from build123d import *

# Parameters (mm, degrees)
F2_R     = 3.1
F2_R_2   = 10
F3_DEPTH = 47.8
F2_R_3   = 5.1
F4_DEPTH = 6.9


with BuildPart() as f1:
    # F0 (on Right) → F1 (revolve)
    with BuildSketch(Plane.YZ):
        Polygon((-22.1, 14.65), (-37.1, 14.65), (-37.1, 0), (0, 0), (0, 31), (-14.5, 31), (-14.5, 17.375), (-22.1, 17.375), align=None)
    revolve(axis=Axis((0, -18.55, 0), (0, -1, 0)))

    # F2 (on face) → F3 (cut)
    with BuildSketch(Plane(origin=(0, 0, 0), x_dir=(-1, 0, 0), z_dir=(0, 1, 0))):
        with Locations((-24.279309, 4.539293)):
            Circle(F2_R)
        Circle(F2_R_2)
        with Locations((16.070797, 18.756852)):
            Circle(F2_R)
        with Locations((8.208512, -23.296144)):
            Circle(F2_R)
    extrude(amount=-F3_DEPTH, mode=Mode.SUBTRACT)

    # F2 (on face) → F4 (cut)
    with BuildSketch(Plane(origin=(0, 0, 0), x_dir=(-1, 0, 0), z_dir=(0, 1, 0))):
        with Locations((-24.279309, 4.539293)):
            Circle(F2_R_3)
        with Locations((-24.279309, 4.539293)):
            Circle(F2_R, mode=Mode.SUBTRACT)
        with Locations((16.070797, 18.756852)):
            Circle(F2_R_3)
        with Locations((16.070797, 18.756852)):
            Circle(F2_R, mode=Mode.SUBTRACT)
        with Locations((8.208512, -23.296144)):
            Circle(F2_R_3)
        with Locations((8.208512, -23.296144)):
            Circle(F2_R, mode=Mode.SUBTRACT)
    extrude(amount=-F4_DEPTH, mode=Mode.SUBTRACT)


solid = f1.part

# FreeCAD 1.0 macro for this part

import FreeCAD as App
import Part
import Sketcher
Q = App.Units.Quantity


def add_polygon(sketch, points):
    """Adds a closed chain of lines whose ends are joined by coincident constraints."""
    first, n = sketch.GeometryCount, len(points)
    for a, b in zip(points, points[1:] + points[:1]):
        sketch.addGeometry(Part.LineSegment(App.Vector(*a, 0), App.Vector(*b, 0)), False)
    for i in range(n):
        sketch.addConstraint(Sketcher.Constraint("Coincident", first + i, 2, first + (i + 1) % n, 1))

doc = App.newDocument("Part")
body = doc.addObject("PartDesign::Body", "Body")

sketch1 = body.newObject("Sketcher::SketchObject", "Sketch")
sketch1.AttachmentSupport = (doc.getObject("YZ_Plane"), [""])
sketch1.MapMode = "FlatFace"
add_polygon(sketch1, [(-22.1, 14.7), (-37.1, 14.7), (-37.1, 0), (0, 0), (0, 31), (-14.5, 31), (-14.5, 17.4), (-22.1, 17.4)])
sketch1.addConstraint([
    Sketcher.Constraint("Horizontal", 0),
    Sketcher.Constraint("Vertical", 1),
    Sketcher.Constraint("Horizontal", 2),
    Sketcher.Constraint("Vertical", 3),
    Sketcher.Constraint("Horizontal", 4),
    Sketcher.Constraint("Vertical", 5),
    Sketcher.Constraint("Horizontal", 6),
    Sketcher.Constraint("Vertical", 7),
    Sketcher.Constraint("Coincident", 2, 2, -1, 1),
    Sketcher.Constraint("DistanceX", 0, 2, 0, 1, Q("15 mm")),
    Sketcher.Constraint("DistanceY", 3, 1, 3, 2, Q("31 mm")),
    Sketcher.Constraint("DistanceX", 2, 1, 2, 2, Q("37.1 mm")),
    Sketcher.Constraint("DistanceX", 4, 2, 4, 1, Q("14.5 mm")),
    Sketcher.Constraint("DistanceY", 1, 2, 1, 1, Q("14.65 mm")),
    Sketcher.Constraint("DistanceY", 5, 2, 5, 1, Q("13.625 mm")),
])
revolution = body.newObject("PartDesign::Revolution", "Revolution")
revolution.Profile = sketch1
revolution.ReferenceAxis = (sketch1, ["H_Axis"])
revolution.Angle = 360

sketch2 = body.newObject("Sketcher::SketchObject", "Sketch001")
sketch2.AttachmentSupport = (doc.getObject("XZ_Plane"), [""])
sketch2.MapMode = "FlatFace"
sketch2.addGeometry([
    Part.Circle(App.Vector(24.3, 4.5, 0), App.Vector(0, 0, 1), 3.1),
    Part.Circle(App.Vector(0, 0, 0), App.Vector(0, 0, 1), 10),
    Part.Circle(App.Vector(-16.1, 18.8, 0), App.Vector(0, 0, 1), 3.1),
    Part.Circle(App.Vector(-8.2, -23.3, 0), App.Vector(0, 0, 1), 3.1),
], False)
sketch2.addConstraint([
    Sketcher.Constraint("Coincident", 1, 3, -1, 1),
    Sketcher.Constraint("Equal", 0, 2),
    Sketcher.Constraint("Equal", 2, 3),
    Sketcher.Constraint("Diameter", 1, Q("20 mm")),
    Sketcher.Constraint("Diameter", 0, Q("6.2 mm")),
    Sketcher.Constraint("DistanceX", -1, 1, 0, 3, Q("24.279309 mm")),
    Sketcher.Constraint("DistanceY", -1, 1, 2, 3, Q("18.756852 mm")),
    Sketcher.Constraint("DistanceY", 0, 3, 2, 3, Q("14.217559 mm")),
    Sketcher.Constraint("DistanceX", 3, 3, 0, 3, Q("32.487821 mm")),
    Sketcher.Constraint("DistanceX", 2, 3, -1, 1, Q("16.070797 mm")),
    Sketcher.Constraint("DistanceY", 3, 3, -1, 1, Q("23.296144 mm")),
])
pocket1 = body.newObject("PartDesign::Pocket", "Pocket")
pocket1.Profile = sketch2
pocket1.Length = 47.8
pocket1.Reversed = True

sketch3 = body.newObject("Sketcher::SketchObject", "Sketch002")
sketch3.AttachmentSupport = (doc.getObject("XZ_Plane"), [""])
sketch3.MapMode = "FlatFace"
sketch3.addGeometry([
    Part.Circle(App.Vector(24.3, 4.5, 0), App.Vector(0, 0, 1), 5.1),
    Part.Circle(App.Vector(24.3, 4.5, 0), App.Vector(0, 0, 1), 3.1),
    Part.Circle(App.Vector(-16.1, 18.8, 0), App.Vector(0, 0, 1), 5.1),
    Part.Circle(App.Vector(-16.1, 18.8, 0), App.Vector(0, 0, 1), 3.1),
    Part.Circle(App.Vector(-8.2, -23.3, 0), App.Vector(0, 0, 1), 5.1),
    Part.Circle(App.Vector(-8.2, -23.3, 0), App.Vector(0, 0, 1), 3.1),
], False)
sketch3.addConstraint([
    Sketcher.Constraint("Coincident", 1, 3, 0, 3),
    Sketcher.Constraint("Coincident", 3, 3, 2, 3),
    Sketcher.Constraint("Coincident", 5, 3, 4, 3),
    Sketcher.Constraint("Equal", 0, 2),
    Sketcher.Constraint("Equal", 1, 3),
    Sketcher.Constraint("Equal", 2, 4),
    Sketcher.Constraint("Equal", 3, 5),
    Sketcher.Constraint("Diameter", 0, Q("10.2 mm")),
    Sketcher.Constraint("Diameter", 1, Q("6.2 mm")),
    Sketcher.Constraint("DistanceX", -1, 1, 0, 3, Q("24.279309 mm")),
    Sketcher.Constraint("DistanceY", -1, 1, 2, 3, Q("18.756852 mm")),
    Sketcher.Constraint("DistanceY", 0, 3, 2, 3, Q("14.217559 mm")),
    Sketcher.Constraint("DistanceX", 4, 3, 0, 3, Q("32.487821 mm")),
    Sketcher.Constraint("DistanceX", 2, 3, -1, 1, Q("16.070797 mm")),
    Sketcher.Constraint("DistanceY", 4, 3, -1, 1, Q("23.296144 mm")),
])
pocket2 = body.newObject("PartDesign::Pocket", "Pocket001")
pocket2.Profile = sketch3
pocket2.Length = 6.9
pocket2.Reversed = True

doc.recompute()
